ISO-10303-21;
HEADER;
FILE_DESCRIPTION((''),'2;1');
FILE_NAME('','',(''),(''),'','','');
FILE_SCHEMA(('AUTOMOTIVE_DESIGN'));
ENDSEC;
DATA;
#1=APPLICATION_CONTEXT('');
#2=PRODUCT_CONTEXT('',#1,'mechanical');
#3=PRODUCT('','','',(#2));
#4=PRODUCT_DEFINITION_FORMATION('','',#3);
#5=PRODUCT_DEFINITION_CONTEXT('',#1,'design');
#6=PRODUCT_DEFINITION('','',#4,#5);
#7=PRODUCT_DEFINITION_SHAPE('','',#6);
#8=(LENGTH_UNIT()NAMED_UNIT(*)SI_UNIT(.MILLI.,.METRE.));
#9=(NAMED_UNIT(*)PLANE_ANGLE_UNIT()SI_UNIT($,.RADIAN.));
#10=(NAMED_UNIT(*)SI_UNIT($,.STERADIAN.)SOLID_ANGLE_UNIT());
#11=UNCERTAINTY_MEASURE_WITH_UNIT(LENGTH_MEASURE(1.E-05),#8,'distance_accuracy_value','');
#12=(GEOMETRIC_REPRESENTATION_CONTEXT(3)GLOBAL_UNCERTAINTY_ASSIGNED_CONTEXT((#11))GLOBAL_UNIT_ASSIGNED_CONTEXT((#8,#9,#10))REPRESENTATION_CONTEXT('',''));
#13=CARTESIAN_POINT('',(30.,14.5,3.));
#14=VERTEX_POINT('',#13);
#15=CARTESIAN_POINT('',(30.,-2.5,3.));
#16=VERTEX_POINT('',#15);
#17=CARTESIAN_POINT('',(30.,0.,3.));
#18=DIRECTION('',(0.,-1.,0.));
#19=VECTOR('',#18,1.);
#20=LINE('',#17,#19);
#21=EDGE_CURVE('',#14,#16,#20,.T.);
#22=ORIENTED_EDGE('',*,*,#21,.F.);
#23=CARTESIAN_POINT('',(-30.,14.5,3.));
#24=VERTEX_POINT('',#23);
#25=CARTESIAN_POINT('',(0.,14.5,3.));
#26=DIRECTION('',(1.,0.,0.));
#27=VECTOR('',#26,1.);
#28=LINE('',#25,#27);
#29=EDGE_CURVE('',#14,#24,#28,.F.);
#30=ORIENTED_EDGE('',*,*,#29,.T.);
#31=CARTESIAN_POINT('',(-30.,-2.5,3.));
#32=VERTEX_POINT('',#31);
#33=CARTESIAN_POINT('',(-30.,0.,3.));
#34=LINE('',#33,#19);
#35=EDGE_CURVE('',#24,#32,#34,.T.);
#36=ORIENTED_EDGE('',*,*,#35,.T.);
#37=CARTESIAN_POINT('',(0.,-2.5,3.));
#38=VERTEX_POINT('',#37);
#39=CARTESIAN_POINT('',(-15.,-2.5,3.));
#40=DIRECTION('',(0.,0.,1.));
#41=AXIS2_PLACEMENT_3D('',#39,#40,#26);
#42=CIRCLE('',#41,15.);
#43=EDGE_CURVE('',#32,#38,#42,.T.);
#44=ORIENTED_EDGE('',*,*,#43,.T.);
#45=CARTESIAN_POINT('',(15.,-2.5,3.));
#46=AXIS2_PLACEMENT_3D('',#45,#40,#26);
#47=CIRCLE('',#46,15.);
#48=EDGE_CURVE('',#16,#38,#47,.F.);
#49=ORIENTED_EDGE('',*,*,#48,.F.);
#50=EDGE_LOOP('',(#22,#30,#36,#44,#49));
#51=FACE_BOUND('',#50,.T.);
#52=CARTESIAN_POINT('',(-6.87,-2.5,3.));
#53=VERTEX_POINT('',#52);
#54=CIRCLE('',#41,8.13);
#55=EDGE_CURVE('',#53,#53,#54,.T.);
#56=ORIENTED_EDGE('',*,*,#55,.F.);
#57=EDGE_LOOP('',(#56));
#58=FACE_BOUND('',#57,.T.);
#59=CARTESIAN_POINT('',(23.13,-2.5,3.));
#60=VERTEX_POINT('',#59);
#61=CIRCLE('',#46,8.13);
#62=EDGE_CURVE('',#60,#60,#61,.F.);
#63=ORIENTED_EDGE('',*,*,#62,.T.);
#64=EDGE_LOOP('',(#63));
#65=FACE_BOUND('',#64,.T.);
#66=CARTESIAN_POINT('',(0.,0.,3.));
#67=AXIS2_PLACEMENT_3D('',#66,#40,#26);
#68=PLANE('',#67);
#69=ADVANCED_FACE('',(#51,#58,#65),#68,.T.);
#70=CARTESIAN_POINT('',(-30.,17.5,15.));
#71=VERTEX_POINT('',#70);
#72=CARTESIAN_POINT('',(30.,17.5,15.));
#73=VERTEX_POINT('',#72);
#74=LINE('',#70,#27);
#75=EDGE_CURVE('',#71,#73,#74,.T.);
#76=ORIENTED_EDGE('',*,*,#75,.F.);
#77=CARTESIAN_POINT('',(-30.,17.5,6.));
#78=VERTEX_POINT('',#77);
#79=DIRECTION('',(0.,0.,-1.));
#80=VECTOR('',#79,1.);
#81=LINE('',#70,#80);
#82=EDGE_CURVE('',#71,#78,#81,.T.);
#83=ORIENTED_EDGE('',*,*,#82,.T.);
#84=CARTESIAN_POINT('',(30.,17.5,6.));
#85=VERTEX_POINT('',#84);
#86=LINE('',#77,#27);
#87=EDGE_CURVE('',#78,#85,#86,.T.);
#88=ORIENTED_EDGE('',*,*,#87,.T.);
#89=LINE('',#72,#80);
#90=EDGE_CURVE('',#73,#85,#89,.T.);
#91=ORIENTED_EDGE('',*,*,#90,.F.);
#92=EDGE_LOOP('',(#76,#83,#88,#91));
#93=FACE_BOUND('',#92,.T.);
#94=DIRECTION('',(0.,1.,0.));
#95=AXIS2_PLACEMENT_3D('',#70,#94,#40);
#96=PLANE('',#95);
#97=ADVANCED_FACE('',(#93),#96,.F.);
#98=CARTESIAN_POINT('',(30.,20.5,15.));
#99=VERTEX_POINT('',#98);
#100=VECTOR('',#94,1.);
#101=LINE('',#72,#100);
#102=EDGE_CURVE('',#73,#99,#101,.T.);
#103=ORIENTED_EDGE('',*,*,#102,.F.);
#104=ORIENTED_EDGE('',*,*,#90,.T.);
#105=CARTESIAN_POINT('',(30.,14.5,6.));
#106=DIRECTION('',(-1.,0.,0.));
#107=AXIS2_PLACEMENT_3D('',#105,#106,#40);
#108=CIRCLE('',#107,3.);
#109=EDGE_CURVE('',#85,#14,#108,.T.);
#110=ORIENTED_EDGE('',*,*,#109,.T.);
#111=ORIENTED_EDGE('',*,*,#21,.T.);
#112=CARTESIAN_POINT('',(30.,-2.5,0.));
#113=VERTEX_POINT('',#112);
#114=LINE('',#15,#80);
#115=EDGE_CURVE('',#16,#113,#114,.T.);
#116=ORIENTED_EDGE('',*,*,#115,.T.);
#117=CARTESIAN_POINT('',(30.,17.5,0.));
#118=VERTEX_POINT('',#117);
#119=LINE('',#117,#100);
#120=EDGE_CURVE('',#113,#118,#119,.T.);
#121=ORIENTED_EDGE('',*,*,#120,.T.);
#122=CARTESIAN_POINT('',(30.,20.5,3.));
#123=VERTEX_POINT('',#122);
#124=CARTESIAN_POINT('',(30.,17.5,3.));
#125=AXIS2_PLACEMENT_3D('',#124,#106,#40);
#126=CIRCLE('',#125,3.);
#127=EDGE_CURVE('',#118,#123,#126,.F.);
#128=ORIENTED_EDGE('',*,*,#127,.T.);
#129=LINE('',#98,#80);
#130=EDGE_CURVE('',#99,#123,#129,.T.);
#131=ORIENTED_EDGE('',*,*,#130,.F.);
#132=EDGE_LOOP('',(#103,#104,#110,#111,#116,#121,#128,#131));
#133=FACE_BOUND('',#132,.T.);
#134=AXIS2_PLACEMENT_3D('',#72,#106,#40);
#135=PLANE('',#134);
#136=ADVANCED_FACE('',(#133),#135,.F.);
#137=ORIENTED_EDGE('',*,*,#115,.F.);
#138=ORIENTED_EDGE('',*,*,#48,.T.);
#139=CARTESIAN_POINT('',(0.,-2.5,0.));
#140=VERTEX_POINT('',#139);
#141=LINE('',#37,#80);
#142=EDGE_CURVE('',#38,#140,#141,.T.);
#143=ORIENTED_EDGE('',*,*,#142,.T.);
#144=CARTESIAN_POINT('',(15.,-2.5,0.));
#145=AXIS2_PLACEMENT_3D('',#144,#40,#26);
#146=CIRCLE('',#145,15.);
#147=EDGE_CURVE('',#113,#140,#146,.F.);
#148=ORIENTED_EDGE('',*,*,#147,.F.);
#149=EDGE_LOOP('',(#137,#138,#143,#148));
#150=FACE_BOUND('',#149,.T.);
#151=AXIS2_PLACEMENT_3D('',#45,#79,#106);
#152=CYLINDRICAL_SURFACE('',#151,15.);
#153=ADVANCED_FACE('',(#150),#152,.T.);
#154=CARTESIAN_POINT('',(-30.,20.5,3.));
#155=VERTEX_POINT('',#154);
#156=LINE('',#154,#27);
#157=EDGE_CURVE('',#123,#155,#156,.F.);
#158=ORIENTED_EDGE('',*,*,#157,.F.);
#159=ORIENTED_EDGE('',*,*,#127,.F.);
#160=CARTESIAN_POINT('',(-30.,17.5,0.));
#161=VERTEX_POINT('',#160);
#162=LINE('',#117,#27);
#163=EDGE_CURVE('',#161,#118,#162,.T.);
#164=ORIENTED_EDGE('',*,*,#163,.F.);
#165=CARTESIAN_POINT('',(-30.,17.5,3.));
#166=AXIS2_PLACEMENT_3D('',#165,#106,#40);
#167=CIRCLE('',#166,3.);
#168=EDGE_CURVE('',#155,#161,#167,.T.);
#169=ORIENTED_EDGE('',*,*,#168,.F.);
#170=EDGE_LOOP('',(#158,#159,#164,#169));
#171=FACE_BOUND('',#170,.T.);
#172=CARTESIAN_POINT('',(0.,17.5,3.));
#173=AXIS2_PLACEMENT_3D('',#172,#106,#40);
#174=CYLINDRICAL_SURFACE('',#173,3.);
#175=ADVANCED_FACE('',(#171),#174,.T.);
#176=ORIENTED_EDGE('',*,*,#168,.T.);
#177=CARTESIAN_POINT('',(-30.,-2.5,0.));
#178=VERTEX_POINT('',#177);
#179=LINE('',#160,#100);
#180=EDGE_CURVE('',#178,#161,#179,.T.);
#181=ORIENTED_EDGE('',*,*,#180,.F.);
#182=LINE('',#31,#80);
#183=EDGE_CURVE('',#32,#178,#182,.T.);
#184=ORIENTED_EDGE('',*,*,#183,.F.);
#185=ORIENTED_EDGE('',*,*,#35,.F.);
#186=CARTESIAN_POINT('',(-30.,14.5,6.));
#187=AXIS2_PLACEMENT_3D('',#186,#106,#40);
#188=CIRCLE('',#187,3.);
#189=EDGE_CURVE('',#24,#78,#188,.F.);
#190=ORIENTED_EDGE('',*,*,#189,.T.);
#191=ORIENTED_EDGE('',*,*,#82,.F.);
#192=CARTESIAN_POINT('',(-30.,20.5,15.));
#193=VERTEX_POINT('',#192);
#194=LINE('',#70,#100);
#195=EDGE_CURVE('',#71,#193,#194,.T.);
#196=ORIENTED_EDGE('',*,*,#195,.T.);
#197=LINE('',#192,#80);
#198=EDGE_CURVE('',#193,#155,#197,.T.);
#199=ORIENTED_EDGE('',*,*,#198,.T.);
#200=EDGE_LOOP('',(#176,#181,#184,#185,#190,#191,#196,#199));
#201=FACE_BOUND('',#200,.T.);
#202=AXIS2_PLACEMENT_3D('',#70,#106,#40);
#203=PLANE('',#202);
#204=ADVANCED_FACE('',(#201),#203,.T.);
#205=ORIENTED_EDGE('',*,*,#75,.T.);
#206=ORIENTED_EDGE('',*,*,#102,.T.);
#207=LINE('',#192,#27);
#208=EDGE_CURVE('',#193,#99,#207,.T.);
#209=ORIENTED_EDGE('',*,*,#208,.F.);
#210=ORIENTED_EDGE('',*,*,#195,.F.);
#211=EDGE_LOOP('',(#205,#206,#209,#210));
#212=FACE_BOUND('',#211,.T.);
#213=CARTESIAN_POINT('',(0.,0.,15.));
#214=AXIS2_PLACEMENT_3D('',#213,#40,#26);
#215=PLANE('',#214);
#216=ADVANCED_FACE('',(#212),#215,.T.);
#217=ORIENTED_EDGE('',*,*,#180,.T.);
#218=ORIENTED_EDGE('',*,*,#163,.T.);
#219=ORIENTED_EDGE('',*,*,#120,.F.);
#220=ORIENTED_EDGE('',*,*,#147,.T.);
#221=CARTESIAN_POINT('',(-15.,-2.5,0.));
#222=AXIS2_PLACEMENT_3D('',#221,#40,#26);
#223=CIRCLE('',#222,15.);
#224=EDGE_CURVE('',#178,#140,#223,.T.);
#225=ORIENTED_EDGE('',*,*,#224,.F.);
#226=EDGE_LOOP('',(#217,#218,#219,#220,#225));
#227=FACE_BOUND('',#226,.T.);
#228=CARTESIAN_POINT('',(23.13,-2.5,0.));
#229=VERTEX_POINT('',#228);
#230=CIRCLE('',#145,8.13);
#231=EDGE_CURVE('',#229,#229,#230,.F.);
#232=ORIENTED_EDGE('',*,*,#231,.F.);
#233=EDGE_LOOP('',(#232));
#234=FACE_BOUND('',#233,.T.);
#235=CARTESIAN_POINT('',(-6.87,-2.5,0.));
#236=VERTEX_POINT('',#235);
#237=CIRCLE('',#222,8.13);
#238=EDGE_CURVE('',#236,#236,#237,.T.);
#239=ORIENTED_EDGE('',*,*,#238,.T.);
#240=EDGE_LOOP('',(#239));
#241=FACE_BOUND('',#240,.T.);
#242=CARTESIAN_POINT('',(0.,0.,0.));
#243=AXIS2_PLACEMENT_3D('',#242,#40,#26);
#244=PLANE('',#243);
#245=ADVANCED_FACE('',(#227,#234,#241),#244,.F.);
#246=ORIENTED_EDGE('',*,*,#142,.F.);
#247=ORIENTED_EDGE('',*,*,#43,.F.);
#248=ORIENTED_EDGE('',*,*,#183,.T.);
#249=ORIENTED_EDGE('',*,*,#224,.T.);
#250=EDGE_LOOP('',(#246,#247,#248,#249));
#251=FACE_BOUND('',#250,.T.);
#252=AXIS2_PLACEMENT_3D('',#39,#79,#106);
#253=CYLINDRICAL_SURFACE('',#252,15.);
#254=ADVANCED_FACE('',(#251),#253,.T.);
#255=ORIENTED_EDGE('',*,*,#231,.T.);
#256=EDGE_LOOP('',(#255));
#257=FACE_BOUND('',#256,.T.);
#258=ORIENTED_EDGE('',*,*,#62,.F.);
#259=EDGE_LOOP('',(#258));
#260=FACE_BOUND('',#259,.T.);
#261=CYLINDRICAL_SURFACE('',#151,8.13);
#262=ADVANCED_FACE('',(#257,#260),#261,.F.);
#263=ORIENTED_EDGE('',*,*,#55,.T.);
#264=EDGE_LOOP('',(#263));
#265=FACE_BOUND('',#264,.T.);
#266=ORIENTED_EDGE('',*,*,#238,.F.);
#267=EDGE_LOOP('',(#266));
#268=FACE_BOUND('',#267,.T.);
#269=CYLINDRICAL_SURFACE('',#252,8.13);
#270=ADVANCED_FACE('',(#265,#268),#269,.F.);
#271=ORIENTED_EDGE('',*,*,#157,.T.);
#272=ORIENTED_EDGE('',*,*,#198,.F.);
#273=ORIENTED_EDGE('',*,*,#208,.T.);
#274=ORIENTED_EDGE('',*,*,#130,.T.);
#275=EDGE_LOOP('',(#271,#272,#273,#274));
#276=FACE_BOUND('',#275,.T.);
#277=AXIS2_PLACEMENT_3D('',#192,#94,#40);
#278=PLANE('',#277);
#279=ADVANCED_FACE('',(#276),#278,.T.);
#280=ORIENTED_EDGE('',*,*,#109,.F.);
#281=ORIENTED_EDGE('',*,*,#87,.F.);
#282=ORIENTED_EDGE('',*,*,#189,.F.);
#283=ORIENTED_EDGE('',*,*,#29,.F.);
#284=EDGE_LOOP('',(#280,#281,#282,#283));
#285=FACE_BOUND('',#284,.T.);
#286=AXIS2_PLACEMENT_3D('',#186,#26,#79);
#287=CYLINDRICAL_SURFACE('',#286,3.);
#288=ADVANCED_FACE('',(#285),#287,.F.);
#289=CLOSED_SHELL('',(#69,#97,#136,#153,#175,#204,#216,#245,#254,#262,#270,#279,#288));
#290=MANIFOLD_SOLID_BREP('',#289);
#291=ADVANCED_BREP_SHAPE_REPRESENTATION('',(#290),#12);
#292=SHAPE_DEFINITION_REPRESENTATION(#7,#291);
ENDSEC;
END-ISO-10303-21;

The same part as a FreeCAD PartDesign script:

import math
import FreeCAD as App
import Part
import Sketcher
from FreeCAD import Vector


def edges_at(feature, points):
    """Names of the edges that pass closest to the given points."""
    edges = feature.Shape.Edges
    near = lambda p: min(range(len(edges)), key=lambda i: edges[i].distToShape(Part.Vertex(*p))[0])
    return sorted({f"Edge{near(p) + 1}" for p in points})

doc = App.newDocument("Part")
body = doc.addObject("PartDesign::Body", "Body")

sketch1 = body.newObject("Sketcher::SketchObject", "Sketch")
sketch1.AttachmentSupport = (doc.getObject("XY_Plane"), [""])
sketch1.MapMode = "FlatFace"
sketch1.addGeometry(Part.LineSegment(Vector(-30, 20.5, 0), Vector(-30, 17.5, 0)), False)
sketch1.addGeometry(Part.LineSegment(Vector(-30, 17.5, 0), Vector(30, 17.5, 0)), False)
sketch1.addGeometry(Part.LineSegment(Vector(30, 17.5, 0), Vector(30, 20.5, 0)), False)
sketch1.addGeometry(Part.LineSegment(Vector(30, 20.5, 0), Vector(-30, 20.5, 0)), False)
sketch1.addConstraint(Sketcher.Constraint("Coincident", 0, 2, 1, 1))
sketch1.addConstraint(Sketcher.Constraint("Coincident", 1, 2, 2, 1))
sketch1.addConstraint(Sketcher.Constraint("Coincident", 2, 2, 3, 1))
sketch1.addConstraint(Sketcher.Constraint("Coincident", 3, 2, 0, 1))
sketch1.addConstraint(Sketcher.Constraint("Vertical", 0))
sketch1.addConstraint(Sketcher.Constraint("Horizontal", 1))
sketch1.addConstraint(Sketcher.Constraint("Vertical", 2))
sketch1.addConstraint(Sketcher.Constraint("Horizontal", 3))
sketch1.addConstraint(Sketcher.Constraint("DistanceX", 1, 1, 1, 2, 60.0))
sketch1.addConstraint(Sketcher.Constraint("DistanceY", 0, 2, 0, 1, 3.0))
sketch1.addConstraint(Sketcher.Constraint("DistanceX", 0, 2, -1, 1, 30.0))
sketch1.addConstraint(Sketcher.Constraint("DistanceY", -1, 1, 0, 2, 17.5))
pad1 = body.newObject("PartDesign::Pad", "Pad")
pad1.Profile = sketch1
pad1.Length = 15

sketch2 = body.newObject("Sketcher::SketchObject", "Sketch001")
sketch2.AttachmentSupport = (doc.getObject("XY_Plane"), [""])
sketch2.MapMode = "FlatFace"
sketch2.addGeometry(Part.LineSegment(Vector(30, 18, 0), Vector(-30, 18, 0)), False)
sketch2.addGeometry(Part.LineSegment(Vector(-30, 18, 0), Vector(-30, -2, 0)), False)
sketch2.addGeometry(Part.ArcOfCircle(Part.Circle(Vector(-15, -3, 0), Vector(0, 0, 1), 15), math.radians(180), math.radians(270)), False)
sketch2.addGeometry(Part.ArcOfCircle(Part.Circle(Vector(-15, -3, 0), Vector(0, 0, 1), 15), math.radians(-90), math.radians(0)), False)
sketch2.addGeometry(Part.ArcOfCircle(Part.Circle(Vector(15, -2, 0), Vector(0, 0, 1), 15), math.radians(-180), math.radians(-90)), False)
sketch2.addGeometry(Part.ArcOfCircle(Part.Circle(Vector(15, -2, 0), Vector(0, 0, 1), 15), math.radians(-90), math.radians(0)), False)
sketch2.addGeometry(Part.LineSegment(Vector(30, -2, 0), Vector(30, 18, 0)), False)
sketch2.addGeometry(Part.Circle(Vector(-15, -2, 0), Vector(0, 0, 1), 8), False)
sketch2.addGeometry(Part.Circle(Vector(15, -2, 0), Vector(0, 0, 1), 8), False)
sketch2.addConstraint(Sketcher.Constraint("Coincident", 0, 2, 1, 1))
sketch2.addConstraint(Sketcher.Constraint("Tangent", 1, 2, 2, 1))
sketch2.addConstraint(Sketcher.Constraint("Tangent", 2, 2, 3, 1))
sketch2.addConstraint(Sketcher.Constraint("Tangent", 3, 2, 4, 1))
sketch2.addConstraint(Sketcher.Constraint("Tangent", 4, 2, 5, 1))
sketch2.addConstraint(Sketcher.Constraint("Tangent", 5, 2, 6, 1))
sketch2.addConstraint(Sketcher.Constraint("Coincident", 6, 2, 0, 1))
sketch2.addConstraint(Sketcher.Constraint("Horizontal", 0))
sketch2.addConstraint(Sketcher.Constraint("Vertical", 1))
sketch2.addConstraint(Sketcher.Constraint("Vertical", 6))
sketch2.addConstraint(Sketcher.Constraint("Coincident", 7, 3, 2, 3))
sketch2.addConstraint(Sketcher.Constraint("Coincident", 8, 3, 4, 3))
sketch2.addConstraint(Sketcher.Constraint("Equal", 2, 3))
sketch2.addConstraint(Sketcher.Constraint("Equal", 3, 4))
sketch2.addConstraint(Sketcher.Constraint("Equal", 4, 5))
sketch2.addConstraint(Sketcher.Constraint("Equal", 7, 8))
sketch2.addConstraint(Sketcher.Constraint("Symmetric", 2, 3, 4, 3, -2))
sketch2.addConstraint(Sketcher.Constraint("Vertical", 7, 3, 2, 2))
sketch2.addConstraint(Sketcher.Constraint("Vertical", 8, 3, 4, 2))
sketch2.addConstraint(Sketcher.Constraint("Radius", 2, 15.0))
sketch2.addConstraint(Sketcher.Constraint("Diameter", 7, 16.26))
sketch2.addConstraint(Sketcher.Constraint("DistanceY", 1, 2, 1, 1, 20.0))
sketch2.addConstraint(Sketcher.Constraint("DistanceY", 2, 3, -1, 1, 2.5))
pad2 = body.newObject("PartDesign::Pad", "Pad001")
pad2.Profile = sketch2
pad2.Length = 3
doc.recompute()

fillet = body.newObject("PartDesign::Fillet", "Fillet")
fillet.Base = (pad2, edges_at(pad2, [(0, 17.5, 3)]))
fillet.Radius = 3
doc.recompute()

fillet2 = body.newObject("PartDesign::Fillet", "Fillet001")
fillet2.Base = (fillet, edges_at(fillet, [(0, 20.5, 0)]))
fillet2.Radius = 3

doc.recompute()
